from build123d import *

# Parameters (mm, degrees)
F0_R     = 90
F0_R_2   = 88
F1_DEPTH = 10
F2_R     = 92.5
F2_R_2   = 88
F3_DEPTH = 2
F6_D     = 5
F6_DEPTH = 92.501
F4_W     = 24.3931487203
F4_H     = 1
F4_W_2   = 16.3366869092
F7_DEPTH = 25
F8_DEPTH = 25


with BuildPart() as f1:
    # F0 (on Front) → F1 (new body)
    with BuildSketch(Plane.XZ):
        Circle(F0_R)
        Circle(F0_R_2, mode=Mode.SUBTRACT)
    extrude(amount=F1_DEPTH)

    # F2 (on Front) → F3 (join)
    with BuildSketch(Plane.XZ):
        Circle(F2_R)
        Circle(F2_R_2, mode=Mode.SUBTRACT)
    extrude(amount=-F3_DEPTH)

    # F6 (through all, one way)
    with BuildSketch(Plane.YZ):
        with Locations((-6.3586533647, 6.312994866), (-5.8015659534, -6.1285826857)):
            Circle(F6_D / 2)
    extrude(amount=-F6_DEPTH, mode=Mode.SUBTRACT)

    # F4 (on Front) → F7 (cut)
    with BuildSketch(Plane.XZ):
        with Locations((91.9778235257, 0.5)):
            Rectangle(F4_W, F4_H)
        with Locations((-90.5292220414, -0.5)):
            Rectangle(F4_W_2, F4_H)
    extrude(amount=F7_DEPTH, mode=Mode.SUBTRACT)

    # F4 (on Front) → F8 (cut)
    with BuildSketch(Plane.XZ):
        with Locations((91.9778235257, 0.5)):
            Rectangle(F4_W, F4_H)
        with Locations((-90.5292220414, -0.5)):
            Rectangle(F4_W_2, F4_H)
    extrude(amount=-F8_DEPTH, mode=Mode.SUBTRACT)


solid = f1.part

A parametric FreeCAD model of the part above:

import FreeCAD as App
import Part
import Sketcher

doc = App.newDocument("Part")
body = doc.addObject("PartDesign::Body", "Body")
body.AllowCompound = True

# Sketch on XZ plane
sketch1 = body.newObject("Sketcher::SketchObject", "Sketch")
sketch1.AttachmentSupport = (doc.getObject("XZ_Plane"), [""])
sketch1.MapMode = "FlatFace"
sketch1.addGeometry(Part.Circle(App.Vector(0, 0, 0), App.Vector(0, 0, 1), 90), False)
sketch1.addGeometry(Part.Circle(App.Vector(0, 0, 0), App.Vector(0, 0, 1), 88), False)
sketch1.addConstraint(Sketcher.Constraint("Coincident", 0, 3, -1, 1))
sketch1.addConstraint(Sketcher.Constraint("Coincident", 1, 3, -1, 1))
sketch1.addConstraint(Sketcher.Constraint("Diameter", 0, 180.0))
sketch1.addConstraint(Sketcher.Constraint("Diameter", 1, 176.0))
pad1 = body.newObject("PartDesign::Pad", "Pad")
pad1.Profile = sketch1
pad1.Length = 10

# Sketch on XZ plane
sketch2 = body.newObject("Sketcher::SketchObject", "Sketch001")
sketch2.AttachmentSupport = (doc.getObject("XZ_Plane"), [""])
sketch2.MapMode = "FlatFace"
sketch2.addGeometry(Part.Circle(App.Vector(0, 0, 0), App.Vector(0, 0, 1), 92), False)
sketch2.addGeometry(Part.Circle(App.Vector(0, 0, 0), App.Vector(0, 0, 1), 88), False)
sketch2.addConstraint(Sketcher.Constraint("Coincident", 0, 3, -1, 1))
sketch2.addConstraint(Sketcher.Constraint("Coincident", 1, 3, -1, 1))
sketch2.addConstraint(Sketcher.Constraint("Diameter", 0, 185.0))
sketch2.addConstraint(Sketcher.Constraint("Diameter", 1, 176.0))
pad2 = body.newObject("PartDesign::Pad", "Pad001")
pad2.Profile = sketch2
pad2.Length = 2
pad2.Reversed = True

# Sketch on YZ plane
sketch3 = body.newObject("Sketcher::SketchObject", "Sketch002")
sketch3.AttachmentSupport = (doc.getObject("YZ_Plane"), [""])
sketch3.MapMode = "FlatFace"
sketch3.addGeometry(Part.Circle(App.Vector(-5.8, -6.1, 0), App.Vector(0, 0, 1), 2.5), False)
sketch3.addGeometry(Part.Circle(App.Vector(-6.4, 6.3, 0), App.Vector(0, 0, 1), 2.5), False)
sketch3.addConstraint(Sketcher.Constraint("Equal", 0, 1))
sketch3.addConstraint(Sketcher.Constraint("Diameter", 0, 5.0))
sketch3.addConstraint(Sketcher.Constraint("DistanceX", 0, 3, -1, 1, 5.801566))
sketch3.addConstraint(Sketcher.Constraint("DistanceY", 0, 3, -1, 1, 6.128583))
sketch3.addConstraint(Sketcher.Constraint("DistanceX", 1, 3, -1, 1, 6.358653))
sketch3.addConstraint(Sketcher.Constraint("DistanceY", -1, 1, 1, 3, 6.312995))
pocket1 = body.newObject("PartDesign::Pocket", "Pocket")
pocket1.Profile = sketch3
pocket1.Type = "ThroughAll"

# Sketch on XZ plane
sketch4 = body.newObject("Sketcher::SketchObject", "Sketch003")
sketch4.AttachmentSupport = (doc.getObject("XZ_Plane"), [""])
sketch4.MapMode = "FlatFace"
sketch4.addGeometry(Part.LineSegment(App.Vector(79.8, 1, 0), App.Vector(79.8, 0, 0)), False)
sketch4.addGeometry(Part.LineSegment(App.Vector(79.8, 0, 0), App.Vector(104.2, 0, 0)), False)
sketch4.addGeometry(Part.LineSegment(App.Vector(104.2, 0, 0), App.Vector(104.2, 1, 0)), False)
sketch4.addGeometry(Part.LineSegment(App.Vector(104.2, 1, 0), App.Vector(79.8, 1, 0)), False)
sketch4.addGeometry(Part.LineSegment(App.Vector(-98.7, 0, 0), App.Vector(-98.7, -1, 0)), False)
sketch4.addGeometry(Part.LineSegment(App.Vector(-98.7, -1, 0), App.Vector(-82.4, -1, 0)), False)
sketch4.addGeometry(Part.LineSegment(App.Vector(-82.4, -1, 0), App.Vector(-82.4, 0, 0)), False)
sketch4.addGeometry(Part.LineSegment(App.Vector(-82.4, 0, 0), App.Vector(-98.7, 0, 0)), False)
sketch4.addConstraint(Sketcher.Constraint("Coincident", 0, 2, 1, 1))
sketch4.addConstraint(Sketcher.Constraint("Coincident", 1, 2, 2, 1))
sketch4.addConstraint(Sketcher.Constraint("Coincident", 2, 2, 3, 1))
sketch4.addConstraint(Sketcher.Constraint("Coincident", 3, 2, 0, 1))
sketch4.addConstraint(Sketcher.Constraint("Coincident", 4, 2, 5, 1))
sketch4.addConstraint(Sketcher.Constraint("Coincident", 5, 2, 6, 1))
sketch4.addConstraint(Sketcher.Constraint("Coincident", 6, 2, 7, 1))
sketch4.addConstraint(Sketcher.Constraint("Coincident", 7, 2, 4, 1))
sketch4.addConstraint(Sketcher.Constraint("Vertical", 0))
sketch4.addConstraint(Sketcher.Constraint("Horizontal", 1))
sketch4.addConstraint(Sketcher.Constraint("Vertical", 2))
sketch4.addConstraint(Sketcher.Constraint("Horizontal", 3))
sketch4.addConstraint(Sketcher.Constraint("Vertical", 4))
sketch4.addConstraint(Sketcher.Constraint("Horizontal", 5))
sketch4.addConstraint(Sketcher.Constraint("Vertical", 6))
sketch4.addConstraint(Sketcher.Constraint("Horizontal", 7))
sketch4.addConstraint(Sketcher.Constraint("PointOnObject", 0, 2, -1))
sketch4.addConstraint(Sketcher.Constraint("PointOnObject", 6, 2, -1))
sketch4.addConstraint(Sketcher.Constraint("Equal", 2, 4))
sketch4.addConstraint(Sketcher.Constraint("DistanceY", 0, 2, 0, 1, 1.0))
sketch4.addConstraint(Sketcher.Constraint("DistanceX", 1, 1, 1, 2, 24.393149))
sketch4.addConstraint(Sketcher.Constraint("DistanceX", 5, 1, 5, 2, 16.336687))
sketch4.addConstraint(Sketcher.Constraint("DistanceX", -1, 1, 0, 2, 79.781249))
sketch4.addConstraint(Sketcher.Constraint("DistanceX", 5, 2, -1, 1, 82.360879))
pocket2 = body.newObject("PartDesign::Pocket", "Pocket001")
pocket2.Profile = sketch4
pocket2.Length = 25
pocket2.Reversed = True

# Sketch on XZ plane
sketch5 = body.newObject("Sketcher::SketchObject", "Sketch004")
sketch5.AttachmentSupport = (doc.getObject("XZ_Plane"), [""])
sketch5.MapMode = "FlatFace"
sketch5.addGeometry(Part.LineSegment(App.Vector(79.8, 1, 0), App.Vector(79.8, 0, 0)), False)
sketch5.addGeometry(Part.LineSegment(App.Vector(79.8, 0, 0), App.Vector(104.2, 0, 0)), False)
sketch5.addGeometry(Part.LineSegment(App.Vector(104.2, 0, 0), App.Vector(104.2, 1, 0)), False)
sketch5.addGeometry(Part.LineSegment(App.Vector(104.2, 1, 0), App.Vector(79.8, 1, 0)), False)
sketch5.addGeometry(Part.LineSegment(App.Vector(-98.7, 0, 0), App.Vector(-98.7, -1, 0)), False)
sketch5.addGeometry(Part.LineSegment(App.Vector(-98.7, -1, 0), App.Vector(-82.4, -1, 0)), False)
sketch5.addGeometry(Part.LineSegment(App.Vector(-82.4, -1, 0), App.Vector(-82.4, 0, 0)), False)
sketch5.addGeometry(Part.LineSegment(App.Vector(-82.4, 0, 0), App.Vector(-98.7, 0, 0)), False)
sketch5.addConstraint(Sketcher.Constraint("Coincident", 0, 2, 1, 1))
sketch5.addConstraint(Sketcher.Constraint("Coincident", 1, 2, 2, 1))
sketch5.addConstraint(Sketcher.Constraint("Coincident", 2, 2, 3, 1))
sketch5.addConstraint(Sketcher.Constraint("Coincident", 3, 2, 0, 1))
sketch5.addConstraint(Sketcher.Constraint("Coincident", 4, 2, 5, 1))
sketch5.addConstraint(Sketcher.Constraint("Coincident", 5, 2, 6, 1))
sketch5.addConstraint(Sketcher.Constraint("Coincident", 6, 2, 7, 1))
sketch5.addConstraint(Sketcher.Constraint("Coincident", 7, 2, 4, 1))
sketch5.addConstraint(Sketcher.Constraint("Vertical", 0))
sketch5.addConstraint(Sketcher.Constraint("Horizontal", 1))
sketch5.addConstraint(Sketcher.Constraint("Vertical", 2))
sketch5.addConstraint(Sketcher.Constraint("Horizontal", 3))
sketch5.addConstraint(Sketcher.Constraint("Vertical", 4))
sketch5.addConstraint(Sketcher.Constraint("Horizontal", 5))
sketch5.addConstraint(Sketcher.Constraint("Vertical", 6))
sketch5.addConstraint(Sketcher.Constraint("Horizontal", 7))
sketch5.addConstraint(Sketcher.Constraint("PointOnObject", 0, 2, -1))
sketch5.addConstraint(Sketcher.Constraint("PointOnObject", 6, 2, -1))
sketch5.addConstraint(Sketcher.Constraint("Equal", 2, 4))
sketch5.addConstraint(Sketcher.Constraint("DistanceY", 0, 2, 0, 1, 1.0))
sketch5.addConstraint(Sketcher.Constraint("DistanceX", 1, 1, 1, 2, 24.393149))
sketch5.addConstraint(Sketcher.Constraint("DistanceX", 5, 1, 5, 2, 16.336687))
sketch5.addConstraint(Sketcher.Constraint("DistanceX", -1, 1, 0, 2, 79.781249))
sketch5.addConstraint(Sketcher.Constraint("DistanceX", 5, 2, -1, 1, 82.360879))
pocket3 = body.newObject("PartDesign::Pocket", "Pocket002")
pocket3.Profile = sketch5
pocket3.Length = 25

doc.recompute()
